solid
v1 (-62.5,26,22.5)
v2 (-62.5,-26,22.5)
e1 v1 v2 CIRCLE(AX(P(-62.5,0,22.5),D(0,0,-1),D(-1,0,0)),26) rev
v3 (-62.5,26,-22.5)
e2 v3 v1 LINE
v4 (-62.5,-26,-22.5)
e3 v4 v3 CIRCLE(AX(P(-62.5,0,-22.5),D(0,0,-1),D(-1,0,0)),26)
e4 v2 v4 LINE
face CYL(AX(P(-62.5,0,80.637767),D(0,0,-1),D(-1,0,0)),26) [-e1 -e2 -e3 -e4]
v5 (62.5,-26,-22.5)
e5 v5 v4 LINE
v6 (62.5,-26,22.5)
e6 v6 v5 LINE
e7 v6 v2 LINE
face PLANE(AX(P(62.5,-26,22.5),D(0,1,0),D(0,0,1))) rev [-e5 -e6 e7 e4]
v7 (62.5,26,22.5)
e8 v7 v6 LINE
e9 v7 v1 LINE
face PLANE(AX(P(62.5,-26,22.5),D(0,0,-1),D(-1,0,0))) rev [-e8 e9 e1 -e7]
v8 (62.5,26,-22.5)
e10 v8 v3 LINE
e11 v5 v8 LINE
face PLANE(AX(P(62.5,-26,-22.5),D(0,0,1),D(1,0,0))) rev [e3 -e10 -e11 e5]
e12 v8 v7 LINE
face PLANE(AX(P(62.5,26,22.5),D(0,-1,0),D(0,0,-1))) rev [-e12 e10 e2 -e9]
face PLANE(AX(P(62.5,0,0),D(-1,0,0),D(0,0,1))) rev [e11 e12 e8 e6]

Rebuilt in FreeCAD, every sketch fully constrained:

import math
import FreeCAD as App
import Part
import Sketcher

V = App.Vector

doc = App.newDocument("Part")
params = doc.addObject("Spreadsheet::Sheet", "Params")
for row, (alias, value) in enumerate([
    ("sketch1_width", "52 mm"),
    ("sketch1_height", "45 mm"),
    ("pad1_length", "125 mm"),
    ("sketch2_radius", "26 mm"),
    ("pad2_length", "45 mm"),
], start=1):
    params.set(f"A{row}", alias)
    params.set(f"B{row}", "=" + value)
    params.setAlias(f"B{row}", alias)

body = doc.addObject("PartDesign::Body", "Body")

sketch1 = body.newObject("Sketcher::SketchObject", "Sketch")
sketch1.AttachmentSupport = (doc.getObject("YZ_Plane"), [""])
sketch1.MapMode = "FlatFace"
sketch1.addGeometry([
    Part.LineSegment(V(26, 22, 0), V(-26, 22, 0)),
    Part.LineSegment(V(-26, 22, 0), V(-26, -22, 0)),
    Part.LineSegment(V(-26, -22, 0), V(26, -22, 0)),
    Part.LineSegment(V(26, -22, 0), V(26, 22, 0)),
], False)
sketch1.addConstraint([
    Sketcher.Constraint("Coincident", 0, 2, 1, 1),
    Sketcher.Constraint("Coincident", 1, 2, 2, 1),
    Sketcher.Constraint("Coincident", 2, 2, 3, 1),
    Sketcher.Constraint("Coincident", 3, 2, 0, 1),
    Sketcher.Constraint("Horizontal", 0),
    Sketcher.Constraint("Vertical", 1),
    Sketcher.Constraint("Horizontal", 2),
    Sketcher.Constraint("Vertical", 3),
    Sketcher.Constraint("Symmetric", 0, 2, 2, 2, -1, 1),
    Sketcher.Constraint("DistanceX", 0, 2, 0, 1, 52.0),
    Sketcher.Constraint("DistanceY", 1, 2, 1, 1, 45.0),
])
sketch1.setExpression("Constraints[9]", "Params.sketch1_width")
sketch1.setExpression("Constraints[10]", "Params.sketch1_height")
pad1 = body.newObject("PartDesign::Pad", "Pad")
pad1.Profile = sketch1
pad1.setExpression("Length", "Params.pad1_length")
pad1.Midplane = True

sketch2 = body.newObject("Sketcher::SketchObject", "Sketch001")
sketch2.AttachmentSupport = (doc.getObject("XY_Plane"), [""])
sketch2.MapMode = "FlatFace"
sketch2.AttachmentOffset = App.Placement(V(0, 0, -22.5), App.Rotation())
sketch2.addGeometry([
    Part.LineSegment(V(-62, 26, 0), V(-62, -26, 0)),
    Part.ArcOfCircle(Part.Circle(V(-62, 0, 0), V(0, 0, 1), 26), math.radians(90), math.radians(270)),
], False)
sketch2.addConstraint([
    Sketcher.Constraint("Coincident", 0, 1, 1, 1),
    Sketcher.Constraint("Coincident", 1, 2, 0, 2),
    Sketcher.Constraint("Vertical", 0),
    Sketcher.Constraint("PointOnObject", 1, 3, -1),
    Sketcher.Constraint("Vertical", 1, 3, 0, 1),
    Sketcher.Constraint("Radius", 1, 26.0),
    Sketcher.Constraint("DistanceX", 1, 3, -1, 1, 62.5),
])
sketch2.setExpression("Constraints[5]", "Params.sketch2_radius")
pad2 = body.newObject("PartDesign::Pad", "Pad001")
pad2.Profile = sketch2
pad2.setExpression("Length", "Params.pad2_length")

doc.recompute()
